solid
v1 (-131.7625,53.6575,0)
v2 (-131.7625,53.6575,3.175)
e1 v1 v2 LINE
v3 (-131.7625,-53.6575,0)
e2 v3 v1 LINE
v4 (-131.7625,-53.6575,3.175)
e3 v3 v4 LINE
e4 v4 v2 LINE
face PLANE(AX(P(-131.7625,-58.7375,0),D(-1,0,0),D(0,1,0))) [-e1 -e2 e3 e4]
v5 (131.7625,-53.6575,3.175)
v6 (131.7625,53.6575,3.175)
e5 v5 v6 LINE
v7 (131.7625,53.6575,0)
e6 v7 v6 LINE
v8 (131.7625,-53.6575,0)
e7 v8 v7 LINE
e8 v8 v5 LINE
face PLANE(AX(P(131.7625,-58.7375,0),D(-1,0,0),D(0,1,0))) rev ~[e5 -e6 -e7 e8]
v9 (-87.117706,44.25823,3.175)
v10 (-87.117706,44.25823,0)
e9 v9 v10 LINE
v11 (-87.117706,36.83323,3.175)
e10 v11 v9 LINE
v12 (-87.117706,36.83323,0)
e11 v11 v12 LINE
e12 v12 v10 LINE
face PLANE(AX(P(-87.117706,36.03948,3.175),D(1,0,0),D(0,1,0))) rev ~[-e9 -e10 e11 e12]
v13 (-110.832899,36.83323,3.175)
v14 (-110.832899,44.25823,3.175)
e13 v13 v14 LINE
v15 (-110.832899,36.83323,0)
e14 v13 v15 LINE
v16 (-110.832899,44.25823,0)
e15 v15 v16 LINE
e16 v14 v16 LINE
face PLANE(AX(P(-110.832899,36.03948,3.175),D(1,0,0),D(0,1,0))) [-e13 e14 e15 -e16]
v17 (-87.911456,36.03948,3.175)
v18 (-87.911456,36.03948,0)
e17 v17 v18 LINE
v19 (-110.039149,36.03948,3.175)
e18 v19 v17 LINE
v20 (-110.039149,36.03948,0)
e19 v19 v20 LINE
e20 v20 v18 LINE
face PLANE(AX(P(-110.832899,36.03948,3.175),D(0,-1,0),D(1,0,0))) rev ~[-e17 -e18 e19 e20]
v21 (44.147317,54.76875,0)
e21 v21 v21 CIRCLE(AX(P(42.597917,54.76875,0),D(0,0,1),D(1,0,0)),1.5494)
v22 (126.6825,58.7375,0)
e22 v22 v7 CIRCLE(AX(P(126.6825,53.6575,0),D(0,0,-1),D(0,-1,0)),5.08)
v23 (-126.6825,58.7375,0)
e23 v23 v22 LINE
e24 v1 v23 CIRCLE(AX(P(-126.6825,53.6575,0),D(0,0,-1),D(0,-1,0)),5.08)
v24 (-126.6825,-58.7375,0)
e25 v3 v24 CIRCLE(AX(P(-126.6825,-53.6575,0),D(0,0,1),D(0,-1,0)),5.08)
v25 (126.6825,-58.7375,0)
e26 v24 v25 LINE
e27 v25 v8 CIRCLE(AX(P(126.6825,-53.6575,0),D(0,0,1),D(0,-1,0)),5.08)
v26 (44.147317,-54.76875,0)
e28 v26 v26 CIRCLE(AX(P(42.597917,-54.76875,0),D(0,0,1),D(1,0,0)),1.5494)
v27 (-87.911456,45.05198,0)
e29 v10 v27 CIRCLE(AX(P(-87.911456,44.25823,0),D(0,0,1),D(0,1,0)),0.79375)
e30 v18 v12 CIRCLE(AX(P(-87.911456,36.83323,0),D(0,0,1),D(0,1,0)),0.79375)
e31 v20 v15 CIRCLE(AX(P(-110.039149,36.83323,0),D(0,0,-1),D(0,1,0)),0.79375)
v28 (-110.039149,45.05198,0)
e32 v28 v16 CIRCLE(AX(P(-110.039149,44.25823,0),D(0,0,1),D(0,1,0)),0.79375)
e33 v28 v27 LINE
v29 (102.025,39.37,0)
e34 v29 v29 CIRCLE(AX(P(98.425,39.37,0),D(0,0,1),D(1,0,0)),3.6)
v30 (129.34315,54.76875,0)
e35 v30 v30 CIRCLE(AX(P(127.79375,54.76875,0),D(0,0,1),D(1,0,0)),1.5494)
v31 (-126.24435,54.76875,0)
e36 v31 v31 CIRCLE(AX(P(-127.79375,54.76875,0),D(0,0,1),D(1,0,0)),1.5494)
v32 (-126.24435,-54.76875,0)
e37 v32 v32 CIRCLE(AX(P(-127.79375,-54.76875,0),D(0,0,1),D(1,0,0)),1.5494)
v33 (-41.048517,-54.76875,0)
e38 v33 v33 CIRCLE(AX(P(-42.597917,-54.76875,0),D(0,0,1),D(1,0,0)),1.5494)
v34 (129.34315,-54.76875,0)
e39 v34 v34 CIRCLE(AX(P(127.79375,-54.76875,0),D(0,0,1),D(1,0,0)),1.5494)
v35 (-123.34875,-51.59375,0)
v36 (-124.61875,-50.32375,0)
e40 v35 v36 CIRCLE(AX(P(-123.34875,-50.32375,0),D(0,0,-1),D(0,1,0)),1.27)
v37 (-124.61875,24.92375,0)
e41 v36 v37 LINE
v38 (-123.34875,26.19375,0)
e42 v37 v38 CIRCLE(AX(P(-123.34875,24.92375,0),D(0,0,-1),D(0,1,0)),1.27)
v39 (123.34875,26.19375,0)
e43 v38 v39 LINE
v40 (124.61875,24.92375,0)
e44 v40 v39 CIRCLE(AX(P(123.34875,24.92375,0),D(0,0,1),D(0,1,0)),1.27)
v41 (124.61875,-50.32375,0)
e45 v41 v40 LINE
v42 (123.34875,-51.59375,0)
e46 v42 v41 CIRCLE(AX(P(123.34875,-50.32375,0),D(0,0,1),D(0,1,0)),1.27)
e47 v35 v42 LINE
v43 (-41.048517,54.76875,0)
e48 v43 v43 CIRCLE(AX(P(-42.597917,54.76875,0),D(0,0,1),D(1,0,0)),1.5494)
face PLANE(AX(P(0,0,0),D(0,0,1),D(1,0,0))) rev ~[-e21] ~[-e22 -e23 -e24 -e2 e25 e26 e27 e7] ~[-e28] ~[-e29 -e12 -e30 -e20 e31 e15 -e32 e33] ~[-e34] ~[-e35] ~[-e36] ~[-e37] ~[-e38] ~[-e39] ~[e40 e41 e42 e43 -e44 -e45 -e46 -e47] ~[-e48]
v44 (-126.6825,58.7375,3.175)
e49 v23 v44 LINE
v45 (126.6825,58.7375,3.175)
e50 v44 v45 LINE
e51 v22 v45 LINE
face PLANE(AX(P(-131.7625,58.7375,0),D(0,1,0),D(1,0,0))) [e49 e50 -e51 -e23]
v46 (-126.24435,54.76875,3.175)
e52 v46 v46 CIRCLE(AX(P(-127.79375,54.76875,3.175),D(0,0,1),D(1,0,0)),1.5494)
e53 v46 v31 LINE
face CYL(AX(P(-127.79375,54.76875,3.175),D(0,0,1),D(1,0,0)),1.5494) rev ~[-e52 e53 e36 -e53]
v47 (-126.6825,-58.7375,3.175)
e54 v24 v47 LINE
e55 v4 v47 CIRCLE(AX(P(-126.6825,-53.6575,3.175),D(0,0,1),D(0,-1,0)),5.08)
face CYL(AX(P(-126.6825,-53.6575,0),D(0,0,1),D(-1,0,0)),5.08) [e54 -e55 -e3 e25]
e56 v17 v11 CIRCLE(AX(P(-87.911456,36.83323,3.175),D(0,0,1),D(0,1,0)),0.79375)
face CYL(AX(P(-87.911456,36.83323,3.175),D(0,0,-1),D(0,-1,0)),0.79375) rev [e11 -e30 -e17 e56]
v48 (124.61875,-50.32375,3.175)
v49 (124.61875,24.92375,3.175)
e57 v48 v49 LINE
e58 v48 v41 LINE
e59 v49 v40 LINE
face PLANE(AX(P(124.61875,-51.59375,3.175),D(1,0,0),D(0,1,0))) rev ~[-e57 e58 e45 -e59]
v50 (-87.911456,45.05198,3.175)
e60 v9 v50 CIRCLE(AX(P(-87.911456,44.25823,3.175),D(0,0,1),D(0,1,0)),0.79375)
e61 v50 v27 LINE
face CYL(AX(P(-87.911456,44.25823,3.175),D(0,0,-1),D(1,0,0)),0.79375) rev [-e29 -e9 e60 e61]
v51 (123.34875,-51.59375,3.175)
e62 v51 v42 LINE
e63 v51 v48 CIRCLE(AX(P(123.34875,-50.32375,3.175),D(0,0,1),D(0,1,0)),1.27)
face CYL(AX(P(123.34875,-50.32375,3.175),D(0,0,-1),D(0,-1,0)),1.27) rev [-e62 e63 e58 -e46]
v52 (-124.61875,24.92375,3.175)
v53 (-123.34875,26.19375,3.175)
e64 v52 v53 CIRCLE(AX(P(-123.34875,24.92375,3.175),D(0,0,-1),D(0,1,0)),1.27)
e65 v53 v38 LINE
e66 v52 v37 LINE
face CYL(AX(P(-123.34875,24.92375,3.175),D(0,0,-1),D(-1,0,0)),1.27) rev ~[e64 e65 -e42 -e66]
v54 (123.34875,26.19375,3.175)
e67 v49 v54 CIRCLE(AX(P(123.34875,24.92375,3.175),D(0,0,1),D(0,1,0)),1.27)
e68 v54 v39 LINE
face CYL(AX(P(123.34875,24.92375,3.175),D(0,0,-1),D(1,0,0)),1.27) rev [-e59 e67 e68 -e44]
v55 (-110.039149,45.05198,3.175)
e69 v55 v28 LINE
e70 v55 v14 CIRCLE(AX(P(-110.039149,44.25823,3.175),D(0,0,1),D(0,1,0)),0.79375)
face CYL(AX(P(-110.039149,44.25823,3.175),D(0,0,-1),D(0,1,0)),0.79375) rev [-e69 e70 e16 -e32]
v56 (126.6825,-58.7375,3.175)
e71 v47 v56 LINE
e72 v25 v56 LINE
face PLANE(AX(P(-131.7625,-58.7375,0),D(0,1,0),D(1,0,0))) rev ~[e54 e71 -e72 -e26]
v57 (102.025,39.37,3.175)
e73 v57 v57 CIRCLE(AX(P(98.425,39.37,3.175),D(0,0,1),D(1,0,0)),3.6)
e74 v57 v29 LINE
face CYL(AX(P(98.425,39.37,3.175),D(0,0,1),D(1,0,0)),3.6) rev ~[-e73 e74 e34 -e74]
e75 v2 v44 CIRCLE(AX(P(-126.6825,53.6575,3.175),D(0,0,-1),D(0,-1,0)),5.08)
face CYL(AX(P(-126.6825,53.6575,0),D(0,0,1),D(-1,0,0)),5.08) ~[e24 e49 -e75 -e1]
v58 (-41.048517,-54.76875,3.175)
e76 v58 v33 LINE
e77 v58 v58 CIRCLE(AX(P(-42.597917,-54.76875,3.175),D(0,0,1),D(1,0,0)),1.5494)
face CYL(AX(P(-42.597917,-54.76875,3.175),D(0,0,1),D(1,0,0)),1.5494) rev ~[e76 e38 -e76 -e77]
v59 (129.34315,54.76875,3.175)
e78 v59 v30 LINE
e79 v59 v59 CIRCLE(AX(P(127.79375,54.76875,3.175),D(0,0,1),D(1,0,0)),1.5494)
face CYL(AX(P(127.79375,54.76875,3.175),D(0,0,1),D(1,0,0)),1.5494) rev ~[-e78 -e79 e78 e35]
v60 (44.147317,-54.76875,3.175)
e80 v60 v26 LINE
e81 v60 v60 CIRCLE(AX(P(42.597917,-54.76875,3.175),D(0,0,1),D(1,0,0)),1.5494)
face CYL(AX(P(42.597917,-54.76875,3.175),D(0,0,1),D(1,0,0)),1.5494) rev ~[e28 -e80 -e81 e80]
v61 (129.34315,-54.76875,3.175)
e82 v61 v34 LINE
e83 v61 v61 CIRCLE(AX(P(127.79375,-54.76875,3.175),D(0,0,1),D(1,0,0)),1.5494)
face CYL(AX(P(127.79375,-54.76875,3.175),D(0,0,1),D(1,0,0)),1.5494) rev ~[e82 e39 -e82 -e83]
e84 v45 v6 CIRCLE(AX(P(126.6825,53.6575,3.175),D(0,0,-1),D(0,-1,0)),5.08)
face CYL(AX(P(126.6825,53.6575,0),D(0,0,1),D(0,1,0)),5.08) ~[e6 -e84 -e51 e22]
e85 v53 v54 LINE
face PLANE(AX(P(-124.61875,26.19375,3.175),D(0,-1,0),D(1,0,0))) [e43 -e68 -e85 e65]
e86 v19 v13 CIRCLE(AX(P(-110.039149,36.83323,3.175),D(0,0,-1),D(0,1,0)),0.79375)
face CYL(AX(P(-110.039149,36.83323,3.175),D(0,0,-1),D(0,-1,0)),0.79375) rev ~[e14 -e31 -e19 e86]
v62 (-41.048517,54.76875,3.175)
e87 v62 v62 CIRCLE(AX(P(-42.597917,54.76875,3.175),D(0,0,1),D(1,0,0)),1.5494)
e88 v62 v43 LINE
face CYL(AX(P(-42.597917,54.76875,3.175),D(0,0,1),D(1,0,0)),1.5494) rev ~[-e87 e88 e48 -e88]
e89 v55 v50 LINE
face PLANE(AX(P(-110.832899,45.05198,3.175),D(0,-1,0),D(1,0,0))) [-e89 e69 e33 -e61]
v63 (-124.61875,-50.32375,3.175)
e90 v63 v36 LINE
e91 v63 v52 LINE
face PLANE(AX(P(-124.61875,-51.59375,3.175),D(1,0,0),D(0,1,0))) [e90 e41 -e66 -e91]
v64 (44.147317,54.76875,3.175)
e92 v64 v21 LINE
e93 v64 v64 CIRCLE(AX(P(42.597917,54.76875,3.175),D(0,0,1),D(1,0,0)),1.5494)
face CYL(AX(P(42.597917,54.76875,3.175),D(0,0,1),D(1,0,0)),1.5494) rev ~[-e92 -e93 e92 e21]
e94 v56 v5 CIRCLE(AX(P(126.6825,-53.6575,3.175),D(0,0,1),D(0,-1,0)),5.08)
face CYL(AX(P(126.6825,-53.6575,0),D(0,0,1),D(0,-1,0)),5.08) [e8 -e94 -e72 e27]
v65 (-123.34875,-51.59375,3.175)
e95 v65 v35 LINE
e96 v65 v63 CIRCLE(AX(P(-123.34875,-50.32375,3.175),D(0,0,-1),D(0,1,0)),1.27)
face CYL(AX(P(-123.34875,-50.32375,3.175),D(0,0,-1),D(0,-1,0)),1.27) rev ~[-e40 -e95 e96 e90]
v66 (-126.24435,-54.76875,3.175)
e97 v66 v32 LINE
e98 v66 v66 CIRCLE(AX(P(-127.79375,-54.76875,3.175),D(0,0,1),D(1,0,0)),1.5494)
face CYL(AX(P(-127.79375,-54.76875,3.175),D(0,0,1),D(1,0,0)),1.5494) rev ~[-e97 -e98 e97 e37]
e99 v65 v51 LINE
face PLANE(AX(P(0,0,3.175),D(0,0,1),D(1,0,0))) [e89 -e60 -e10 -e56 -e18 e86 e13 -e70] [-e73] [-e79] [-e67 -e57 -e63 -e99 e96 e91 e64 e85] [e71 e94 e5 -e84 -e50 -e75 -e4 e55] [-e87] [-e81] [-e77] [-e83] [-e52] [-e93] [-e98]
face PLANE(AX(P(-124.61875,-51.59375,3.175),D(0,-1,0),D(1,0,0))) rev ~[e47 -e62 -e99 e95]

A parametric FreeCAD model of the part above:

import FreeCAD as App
import Part
import Sketcher
from FreeCAD import Vector
Q = App.Units.Quantity


def edges_at(feature, points):
    """Names of the edges that pass closest to the given points."""
    edges = feature.Shape.Edges
    near = lambda p: min(range(len(edges)), key=lambda i: edges[i].distToShape(Part.Vertex(*p))[0])
    return sorted({f"Edge{near(p) + 1}" for p in points})

doc = App.newDocument("Part")
body = doc.addObject("PartDesign::Body", "Body")

# Sketch on XY plane
sketch1 = body.newObject("Sketcher::SketchObject", "Sketch")
sketch1.AttachmentSupport = (doc.getObject("XY_Plane"), [""])
sketch1.MapMode = "FlatFace"
sketch1.addGeometry([
    Part.LineSegment(Vector(-131.7625, 58.7375, 0), Vector(-131.7625, -58.7375, 0)),
    Part.LineSegment(Vector(-131.7625, -58.7375, 0), Vector(131.7625, -58.7375, 0)),
    Part.LineSegment(Vector(131.7625, -58.7375, 0), Vector(131.7625, 58.7375, 0)),
    Part.LineSegment(Vector(131.7625, 58.7375, 0), Vector(-131.7625, 58.7375, 0)),
], False)
sketch1.addConstraint([
    Sketcher.Constraint("Coincident", 0, 2, 1, 1),
    Sketcher.Constraint("Coincident", 1, 2, 2, 1),
    Sketcher.Constraint("Coincident", 2, 2, 3, 1),
    Sketcher.Constraint("Coincident", 3, 2, 0, 1),
    Sketcher.Constraint("Vertical", 0),
    Sketcher.Constraint("Horizontal", 1),
    Sketcher.Constraint("Vertical", 2),
    Sketcher.Constraint("Horizontal", 3),
    Sketcher.Constraint("Symmetric", 0, 2, 2, 2, -1, 1),
    Sketcher.Constraint("DistanceX", 1, 1, 1, 2, Q("10.375 in")),
    Sketcher.Constraint("DistanceY", 0, 2, 0, 1, Q("4.625 in")),
])
pad1 = body.newObject("PartDesign::Pad", "Pad")
pad1.Profile = sketch1
pad1.Length = Q("0.125 in")

# Sketch on XY plane
sketch2 = body.newObject("Sketcher::SketchObject", "Sketch001")
sketch2.AttachmentSupport = (doc.getObject("XY_Plane"), [""])
sketch2.MapMode = "FlatFace"
sketch2.AttachmentOffset = App.Placement(Vector(0, 0, 0.125 * 25.4), App.Rotation())
sketch2.addGeometry([
    Part.LineSegment(Vector(-124.61875, 26.19375, 0), Vector(-124.61875, -51.59375, 0)),
    Part.LineSegment(Vector(-124.61875, -51.59375, 0), Vector(124.61875, -51.59375, 0)),
    Part.LineSegment(Vector(124.61875, -51.59375, 0), Vector(124.61875, 26.19375, 0)),
    Part.LineSegment(Vector(124.61875, 26.19375, 0), Vector(-124.61875, 26.19375, 0)),
], False)
sketch2.addConstraint([
    Sketcher.Constraint("Coincident", 0, 2, 1, 1),
    Sketcher.Constraint("Coincident", 1, 2, 2, 1),
    Sketcher.Constraint("Coincident", 2, 2, 3, 1),
    Sketcher.Constraint("Coincident", 3, 2, 0, 1),
    Sketcher.Constraint("Vertical", 0),
    Sketcher.Constraint("Horizontal", 1),
    Sketcher.Constraint("Vertical", 2),
    Sketcher.Constraint("Horizontal", 3),
    Sketcher.Constraint("DistanceX", 1, 1, 1, 2, Q("9.8125 in")),
    Sketcher.Constraint("DistanceY", 0, 2, 0, 1, Q("3.0625 in")),
    Sketcher.Constraint("DistanceX", 0, 2, -1, 1, Q("4.90625 in")),
    Sketcher.Constraint("DistanceY", 0, 2, -1, 1, Q("2.03125 in")),
])
pocket1 = body.newObject("PartDesign::Pocket", "Pocket")
pocket1.Profile = sketch2
pocket1.Type = "ThroughAll"

# Sketch on XY plane
sketch3 = body.newObject("Sketcher::SketchObject", "Sketch002")
sketch3.AttachmentSupport = (doc.getObject("XY_Plane"), [""])
sketch3.MapMode = "FlatFace"
sketch3.AttachmentOffset = App.Placement(Vector(0, 0, 0.125 * 25.4), App.Rotation())
sketch3.addGeometry(Part.Circle(Vector(98.425, 39.37, 0), Vector(0, 0, 1), 3.6), False)
sketch3.addConstraint([
    Sketcher.Constraint("Diameter", 0, Q("7.2 mm")),
    Sketcher.Constraint("DistanceY", -1, 1, 0, 3, Q("1.55 in")),
    Sketcher.Constraint("DistanceX", -1, 1, 0, 3, Q("3.875 in")),
])
pocket2 = body.newObject("PartDesign::Pocket", "Pocket001")
pocket2.Profile = sketch3
pocket2.Type = "ThroughAll"

# Sketch on XY plane
sketch4 = body.newObject("Sketcher::SketchObject", "Sketch003")
sketch4.AttachmentSupport = (doc.getObject("XY_Plane"), [""])
sketch4.MapMode = "FlatFace"
sketch4.AttachmentOffset = App.Placement(Vector(0, 0, 0.125 * 25.4), App.Rotation())
sketch4.addGeometry([
    Part.Circle(Vector(-42.597917, 54.76875, 0), Vector(0, 0, 1), 1.5494),  # 0
    Part.Circle(Vector(42.597917, 54.76875, 0), Vector(0, 0, 1), 1.5494),  # 1
    Part.Circle(Vector(42.597917, -54.76875, 0), Vector(0, 0, 1), 1.5494),  # 2
    Part.Circle(Vector(-42.597917, -54.76875, 0), Vector(0, 0, 1), 1.5494),  # 3
    Part.Circle(Vector(-127.79375, -54.76875, 0), Vector(0, 0, 1), 1.5494),  # 4
    Part.Circle(Vector(-127.79375, 54.76875, 0), Vector(0, 0, 1), 1.5494),  # 5
    Part.Circle(Vector(127.79375, 54.76875, 0), Vector(0, 0, 1), 1.5494),  # 6
    Part.Circle(Vector(127.79375, -54.76875, 0), Vector(0, 0, 1), 1.5494),  # 7
], False)
sketch4.addConstraint([
    Sketcher.Constraint("Equal", 0, 1),
    Sketcher.Constraint("Equal", 1, 2),
    Sketcher.Constraint("Equal", 2, 3),
    Sketcher.Constraint("Equal", 3, 4),
    Sketcher.Constraint("Equal", 4, 5),
    Sketcher.Constraint("Equal", 5, 6),
    Sketcher.Constraint("Equal", 6, 7),
    Sketcher.Constraint("Symmetric", 0, 3, 2, 3, -1, 1),
    Sketcher.Constraint("Symmetric", 1, 3, 3, 3, -1, 1),
    Sketcher.Constraint("Symmetric", 4, 3, 6, 3, -1, 1),
    Sketcher.Constraint("Symmetric", 5, 3, 7, 3, -1, 1),
    Sketcher.Constraint("Symmetric", 0, 3, 1, 3, -2),
    Sketcher.Constraint("Symmetric", 5, 3, 6, 3, -2),
    Sketcher.Constraint("Horizontal", 3, 3, 4, 3),
    Sketcher.Constraint("Diameter", 0, Q("0.122 in")),
    Sketcher.Constraint("DistanceY", -1, 1, 0, 3, Q("2.15625 in")),
    Sketcher.Constraint("DistanceX", 4, 3, -1, 1, Q("5.03125 in")),
    Sketcher.Constraint("DistanceX", 0, 3, -1, 1, Q("42.597917 mm")),
])
pocket3 = body.newObject("PartDesign::Pocket", "Pocket002")
pocket3.Profile = sketch4
pocket3.Type = "ThroughAll"
doc.recompute()

fillet = body.newObject("PartDesign::Fillet", "Fillet")
fillet.Base = (pocket3, edges_at(pocket3, [
    (-131.762, 58.737, 1.587),
    (-131.762, -58.737, 1.587),
    (131.762, -58.737, 1.587),
    (131.762, 58.737, 1.587),
]))
fillet.Radius = Q("0.2 in")
doc.recompute()

fillet2 = body.newObject("PartDesign::Fillet", "Fillet001")
fillet2.Base = (fillet, edges_at(fillet, [
    (-124.619, -51.594, 1.587),
    (-124.619, 26.194, 1.587),
    (124.619, 26.194, 1.587),
    (124.619, -51.594, 1.587),
]))
fillet2.Radius = Q("0.05 in")

# Sketch on XY plane
sketch5 = body.newObject("Sketcher::SketchObject", "Sketch004")
sketch5.AttachmentSupport = (doc.getObject("XY_Plane"), [""])
sketch5.MapMode = "FlatFace"
sketch5.AttachmentOffset = App.Placement(Vector(0, 0, 0.125 * 25.4), App.Rotation())
sketch5.addGeometry([
    Part.LineSegment(Vector(-110.832899, 45.05198, 0), Vector(-110.832899, 36.03948, 0)),
    Part.LineSegment(Vector(-110.832899, 36.03948, 0), Vector(-87.117706, 36.03948, 0)),
    Part.LineSegment(Vector(-87.117706, 36.03948, 0), Vector(-87.117706, 45.05198, 0)),
    Part.LineSegment(Vector(-87.117706, 45.05198, 0), Vector(-110.832899, 45.05198, 0)),
], False)
sketch5.addConstraint([
    Sketcher.Constraint("Coincident", 0, 2, 1, 1),
    Sketcher.Constraint("Coincident", 1, 2, 2, 1),
    Sketcher.Constraint("Coincident", 2, 2, 3, 1),
    Sketcher.Constraint("Coincident", 3, 2, 0, 1),
    Sketcher.Constraint("Vertical", 0),
    Sketcher.Constraint("Horizontal", 1),
    Sketcher.Constraint("Vertical", 2),
    Sketcher.Constraint("Horizontal", 3),
    Sketcher.Constraint("DistanceY", 0, 2, 0, 1, Q("9.0125 mm")),
    Sketcher.Constraint("DistanceX", 0, 2, -1, 1, Q("4.3635 in")),
    Sketcher.Constraint("DistanceY", -1, 1, 2, 2, Q("1.7737 in")),
    Sketcher.Constraint("DistanceX", 1, 1, 1, 2, Q("23.715193 mm")),
])
pocket4 = body.newObject("PartDesign::Pocket", "Pocket003")
pocket4.Profile = sketch5
pocket4.Type = "ThroughAll"
doc.recompute()

fillet3 = body.newObject("PartDesign::Fillet", "Fillet002")
fillet3.Base = (pocket4, edges_at(pocket4, [
    (-110.833, 45.052, 1.587),
    (-87.118, 45.052, 1.587),
    (-87.118, 36.039, 1.587),
    (-110.833, 36.039, 1.587),
]))
fillet3.Radius = Q("0.03125 in")

doc.recompute()
